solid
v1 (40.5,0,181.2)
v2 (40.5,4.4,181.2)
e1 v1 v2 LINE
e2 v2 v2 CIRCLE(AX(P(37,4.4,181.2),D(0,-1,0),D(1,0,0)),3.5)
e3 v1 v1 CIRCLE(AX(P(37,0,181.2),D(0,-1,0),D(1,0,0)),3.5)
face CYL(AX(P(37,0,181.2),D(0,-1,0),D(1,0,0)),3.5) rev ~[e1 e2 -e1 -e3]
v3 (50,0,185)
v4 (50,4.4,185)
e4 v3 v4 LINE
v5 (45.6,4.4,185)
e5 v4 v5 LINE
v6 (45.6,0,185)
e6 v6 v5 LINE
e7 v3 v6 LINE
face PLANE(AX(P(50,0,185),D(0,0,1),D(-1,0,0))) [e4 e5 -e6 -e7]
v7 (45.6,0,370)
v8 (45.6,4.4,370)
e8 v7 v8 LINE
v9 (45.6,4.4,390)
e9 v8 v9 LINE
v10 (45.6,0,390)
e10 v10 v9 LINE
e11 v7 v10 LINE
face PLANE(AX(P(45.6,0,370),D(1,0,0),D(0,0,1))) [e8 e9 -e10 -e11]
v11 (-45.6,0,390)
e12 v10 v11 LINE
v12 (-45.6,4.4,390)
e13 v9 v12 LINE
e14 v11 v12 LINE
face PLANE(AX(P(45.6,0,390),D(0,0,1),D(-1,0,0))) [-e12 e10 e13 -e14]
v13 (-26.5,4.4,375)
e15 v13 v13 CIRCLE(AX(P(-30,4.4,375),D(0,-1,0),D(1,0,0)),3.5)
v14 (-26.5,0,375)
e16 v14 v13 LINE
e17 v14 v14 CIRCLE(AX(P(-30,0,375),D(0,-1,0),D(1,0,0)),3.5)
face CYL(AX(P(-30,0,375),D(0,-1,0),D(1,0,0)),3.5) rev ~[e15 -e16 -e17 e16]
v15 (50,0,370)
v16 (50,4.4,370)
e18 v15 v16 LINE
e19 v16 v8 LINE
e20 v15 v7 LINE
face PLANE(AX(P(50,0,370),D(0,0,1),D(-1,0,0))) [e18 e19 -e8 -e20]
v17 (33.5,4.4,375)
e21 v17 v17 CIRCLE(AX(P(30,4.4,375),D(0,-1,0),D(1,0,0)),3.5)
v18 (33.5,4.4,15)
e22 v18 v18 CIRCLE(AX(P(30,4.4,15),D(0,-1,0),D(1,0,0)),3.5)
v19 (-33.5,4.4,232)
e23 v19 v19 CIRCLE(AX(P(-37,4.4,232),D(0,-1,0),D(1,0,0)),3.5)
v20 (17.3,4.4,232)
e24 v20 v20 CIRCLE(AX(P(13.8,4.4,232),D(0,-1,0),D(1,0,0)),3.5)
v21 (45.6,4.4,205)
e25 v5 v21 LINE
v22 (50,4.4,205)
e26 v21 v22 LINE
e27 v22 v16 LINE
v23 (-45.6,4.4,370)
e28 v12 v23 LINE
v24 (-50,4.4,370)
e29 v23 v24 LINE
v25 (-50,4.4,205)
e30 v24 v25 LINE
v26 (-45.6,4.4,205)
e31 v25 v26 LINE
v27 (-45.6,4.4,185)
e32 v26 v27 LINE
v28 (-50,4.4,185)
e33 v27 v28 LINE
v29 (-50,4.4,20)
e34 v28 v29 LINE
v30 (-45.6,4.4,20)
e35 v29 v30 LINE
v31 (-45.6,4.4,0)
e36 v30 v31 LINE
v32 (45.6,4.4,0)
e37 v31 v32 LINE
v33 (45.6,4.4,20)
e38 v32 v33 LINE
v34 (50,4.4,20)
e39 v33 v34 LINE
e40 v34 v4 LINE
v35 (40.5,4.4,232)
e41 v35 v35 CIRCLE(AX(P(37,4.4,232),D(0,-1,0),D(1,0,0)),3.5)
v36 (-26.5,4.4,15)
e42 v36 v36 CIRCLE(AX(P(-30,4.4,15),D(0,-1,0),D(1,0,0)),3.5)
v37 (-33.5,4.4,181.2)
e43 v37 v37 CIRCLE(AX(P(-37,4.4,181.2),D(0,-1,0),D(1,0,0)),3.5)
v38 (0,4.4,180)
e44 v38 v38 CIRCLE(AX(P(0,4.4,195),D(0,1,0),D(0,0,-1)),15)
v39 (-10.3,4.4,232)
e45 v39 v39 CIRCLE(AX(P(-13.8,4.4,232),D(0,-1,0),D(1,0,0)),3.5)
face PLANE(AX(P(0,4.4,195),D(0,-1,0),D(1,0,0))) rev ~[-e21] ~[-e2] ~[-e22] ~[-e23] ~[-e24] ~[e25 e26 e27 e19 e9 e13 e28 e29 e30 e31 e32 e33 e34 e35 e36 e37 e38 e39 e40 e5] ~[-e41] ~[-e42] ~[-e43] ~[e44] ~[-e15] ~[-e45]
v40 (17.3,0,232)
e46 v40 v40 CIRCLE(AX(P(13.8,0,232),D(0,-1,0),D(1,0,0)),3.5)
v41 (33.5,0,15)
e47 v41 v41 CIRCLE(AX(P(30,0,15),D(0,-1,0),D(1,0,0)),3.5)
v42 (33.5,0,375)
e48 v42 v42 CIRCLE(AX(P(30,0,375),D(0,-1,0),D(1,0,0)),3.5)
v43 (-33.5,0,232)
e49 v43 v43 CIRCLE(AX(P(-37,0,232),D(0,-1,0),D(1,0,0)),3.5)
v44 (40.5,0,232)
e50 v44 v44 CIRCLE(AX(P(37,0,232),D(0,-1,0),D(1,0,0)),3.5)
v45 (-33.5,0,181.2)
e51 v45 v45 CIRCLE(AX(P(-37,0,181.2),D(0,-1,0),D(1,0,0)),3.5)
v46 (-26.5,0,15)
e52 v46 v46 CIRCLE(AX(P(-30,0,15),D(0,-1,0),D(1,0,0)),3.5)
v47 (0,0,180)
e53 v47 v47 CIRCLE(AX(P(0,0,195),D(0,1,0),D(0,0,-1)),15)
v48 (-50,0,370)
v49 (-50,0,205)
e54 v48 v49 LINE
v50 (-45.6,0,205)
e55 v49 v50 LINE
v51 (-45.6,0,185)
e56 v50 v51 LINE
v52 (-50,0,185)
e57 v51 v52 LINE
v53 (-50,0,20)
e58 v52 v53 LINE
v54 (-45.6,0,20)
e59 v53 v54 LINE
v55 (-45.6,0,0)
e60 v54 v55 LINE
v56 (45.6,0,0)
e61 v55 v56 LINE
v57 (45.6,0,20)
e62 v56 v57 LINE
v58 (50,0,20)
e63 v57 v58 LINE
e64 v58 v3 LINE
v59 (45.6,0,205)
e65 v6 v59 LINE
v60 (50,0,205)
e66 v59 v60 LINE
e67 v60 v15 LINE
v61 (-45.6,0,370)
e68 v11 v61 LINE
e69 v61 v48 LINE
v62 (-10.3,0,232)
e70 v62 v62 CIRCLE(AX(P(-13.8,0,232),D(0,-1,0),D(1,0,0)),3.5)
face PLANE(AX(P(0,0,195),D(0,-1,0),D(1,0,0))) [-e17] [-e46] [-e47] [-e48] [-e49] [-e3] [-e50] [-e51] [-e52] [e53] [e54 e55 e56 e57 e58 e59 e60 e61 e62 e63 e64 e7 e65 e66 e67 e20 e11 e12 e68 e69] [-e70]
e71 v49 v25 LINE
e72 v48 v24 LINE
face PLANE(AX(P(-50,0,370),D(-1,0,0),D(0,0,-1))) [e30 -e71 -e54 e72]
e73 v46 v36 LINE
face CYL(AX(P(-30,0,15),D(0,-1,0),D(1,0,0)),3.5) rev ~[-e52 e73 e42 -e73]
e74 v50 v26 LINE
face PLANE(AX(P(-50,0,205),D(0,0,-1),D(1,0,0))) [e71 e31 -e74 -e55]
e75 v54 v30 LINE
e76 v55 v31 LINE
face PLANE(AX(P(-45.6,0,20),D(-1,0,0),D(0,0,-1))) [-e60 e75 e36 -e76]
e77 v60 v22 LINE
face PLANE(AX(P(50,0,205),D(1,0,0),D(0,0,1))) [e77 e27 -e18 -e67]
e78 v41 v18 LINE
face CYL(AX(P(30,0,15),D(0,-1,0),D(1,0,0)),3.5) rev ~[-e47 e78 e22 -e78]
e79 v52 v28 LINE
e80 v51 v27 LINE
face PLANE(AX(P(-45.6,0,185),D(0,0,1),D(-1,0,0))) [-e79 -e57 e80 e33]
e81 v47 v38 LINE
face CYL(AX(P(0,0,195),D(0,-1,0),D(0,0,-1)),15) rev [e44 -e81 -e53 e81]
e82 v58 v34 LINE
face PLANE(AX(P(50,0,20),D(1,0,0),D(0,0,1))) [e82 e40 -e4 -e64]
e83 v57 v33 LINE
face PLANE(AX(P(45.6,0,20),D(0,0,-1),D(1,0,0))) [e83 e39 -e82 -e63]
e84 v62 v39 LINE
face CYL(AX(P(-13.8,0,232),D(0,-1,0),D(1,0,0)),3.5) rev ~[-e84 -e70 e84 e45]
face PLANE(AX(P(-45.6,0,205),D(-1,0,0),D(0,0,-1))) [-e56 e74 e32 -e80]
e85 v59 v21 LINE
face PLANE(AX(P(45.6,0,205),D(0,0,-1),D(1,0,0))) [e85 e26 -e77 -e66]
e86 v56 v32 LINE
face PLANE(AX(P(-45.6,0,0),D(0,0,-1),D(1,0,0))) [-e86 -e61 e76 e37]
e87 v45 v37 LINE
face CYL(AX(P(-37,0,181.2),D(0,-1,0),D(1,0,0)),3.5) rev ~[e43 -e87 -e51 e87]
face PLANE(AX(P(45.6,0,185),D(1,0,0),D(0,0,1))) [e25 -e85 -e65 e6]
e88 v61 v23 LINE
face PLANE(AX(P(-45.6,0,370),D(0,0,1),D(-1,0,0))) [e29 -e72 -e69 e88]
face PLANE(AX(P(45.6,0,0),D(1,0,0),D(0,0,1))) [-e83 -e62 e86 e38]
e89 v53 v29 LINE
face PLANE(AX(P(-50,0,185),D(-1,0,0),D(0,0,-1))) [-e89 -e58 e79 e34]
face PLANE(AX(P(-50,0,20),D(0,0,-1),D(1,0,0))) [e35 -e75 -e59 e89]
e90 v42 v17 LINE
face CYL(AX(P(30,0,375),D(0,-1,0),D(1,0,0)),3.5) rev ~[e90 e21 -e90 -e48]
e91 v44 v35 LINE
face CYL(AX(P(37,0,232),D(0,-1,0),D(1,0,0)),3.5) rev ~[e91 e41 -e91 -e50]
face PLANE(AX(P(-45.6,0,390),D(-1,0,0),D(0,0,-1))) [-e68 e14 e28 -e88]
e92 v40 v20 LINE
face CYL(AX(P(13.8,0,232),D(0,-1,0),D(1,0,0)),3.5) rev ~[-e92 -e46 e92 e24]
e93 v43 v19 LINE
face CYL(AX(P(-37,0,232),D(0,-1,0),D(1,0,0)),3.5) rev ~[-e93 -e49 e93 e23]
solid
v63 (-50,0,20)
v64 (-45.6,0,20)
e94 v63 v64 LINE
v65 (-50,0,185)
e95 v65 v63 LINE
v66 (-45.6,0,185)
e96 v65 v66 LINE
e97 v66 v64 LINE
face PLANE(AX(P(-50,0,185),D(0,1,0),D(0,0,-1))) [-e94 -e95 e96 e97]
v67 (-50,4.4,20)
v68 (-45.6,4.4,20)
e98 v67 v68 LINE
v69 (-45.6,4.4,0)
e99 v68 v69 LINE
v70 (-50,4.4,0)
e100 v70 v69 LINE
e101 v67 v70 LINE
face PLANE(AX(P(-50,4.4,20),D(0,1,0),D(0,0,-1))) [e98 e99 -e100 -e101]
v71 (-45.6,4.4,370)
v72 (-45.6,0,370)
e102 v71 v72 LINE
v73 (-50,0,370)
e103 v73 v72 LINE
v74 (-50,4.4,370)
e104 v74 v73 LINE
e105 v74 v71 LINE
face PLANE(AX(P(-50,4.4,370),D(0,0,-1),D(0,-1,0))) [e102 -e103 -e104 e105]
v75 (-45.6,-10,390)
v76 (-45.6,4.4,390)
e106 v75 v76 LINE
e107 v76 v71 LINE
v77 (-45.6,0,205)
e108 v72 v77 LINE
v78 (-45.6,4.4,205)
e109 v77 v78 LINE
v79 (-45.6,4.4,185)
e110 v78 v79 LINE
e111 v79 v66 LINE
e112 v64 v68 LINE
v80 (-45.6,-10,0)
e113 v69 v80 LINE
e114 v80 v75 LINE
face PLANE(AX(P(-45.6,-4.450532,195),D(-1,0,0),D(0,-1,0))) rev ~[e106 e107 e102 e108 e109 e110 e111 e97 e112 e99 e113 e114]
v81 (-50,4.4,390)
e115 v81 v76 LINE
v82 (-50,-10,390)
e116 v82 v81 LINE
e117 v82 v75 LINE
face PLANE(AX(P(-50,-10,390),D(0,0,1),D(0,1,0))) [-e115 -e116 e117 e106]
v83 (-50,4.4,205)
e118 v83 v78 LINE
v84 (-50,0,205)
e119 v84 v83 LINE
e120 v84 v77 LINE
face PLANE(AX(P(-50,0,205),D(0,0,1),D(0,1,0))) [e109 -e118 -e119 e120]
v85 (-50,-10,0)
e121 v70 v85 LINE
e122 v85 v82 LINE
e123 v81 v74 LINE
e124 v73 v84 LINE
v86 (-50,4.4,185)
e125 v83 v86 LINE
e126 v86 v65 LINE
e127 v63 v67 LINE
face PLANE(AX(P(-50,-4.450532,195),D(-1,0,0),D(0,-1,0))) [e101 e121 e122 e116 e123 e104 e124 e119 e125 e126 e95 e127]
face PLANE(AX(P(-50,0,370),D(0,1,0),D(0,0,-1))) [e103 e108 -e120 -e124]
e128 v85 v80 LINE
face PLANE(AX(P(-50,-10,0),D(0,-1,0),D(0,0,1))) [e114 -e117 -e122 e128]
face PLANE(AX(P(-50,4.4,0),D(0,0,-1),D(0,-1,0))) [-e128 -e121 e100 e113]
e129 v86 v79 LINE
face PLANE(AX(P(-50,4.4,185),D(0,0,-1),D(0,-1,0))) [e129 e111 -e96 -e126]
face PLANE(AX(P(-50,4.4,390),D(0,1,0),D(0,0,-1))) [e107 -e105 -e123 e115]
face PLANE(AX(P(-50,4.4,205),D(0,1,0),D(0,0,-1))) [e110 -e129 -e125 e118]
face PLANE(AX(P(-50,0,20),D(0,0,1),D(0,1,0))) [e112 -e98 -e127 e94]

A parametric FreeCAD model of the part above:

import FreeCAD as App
import Part
import Sketcher
from FreeCAD import Vector
Q = App.Units.Quantity


def add_polygon(sketch, points):
    """Adds a closed chain of lines whose ends are joined by coincident constraints."""
    first, n = sketch.GeometryCount, len(points)
    for a, b in zip(points, points[1:] + points[:1]):
        sketch.addGeometry(Part.LineSegment(App.Vector(*a, 0), App.Vector(*b, 0)), False)
    for i in range(n):
        sketch.addConstraint(Sketcher.Constraint("Coincident", first + i, 2, first + (i + 1) % n, 1))

doc = App.newDocument("Part")
body = doc.addObject("PartDesign::Body", "Body")

# Sketch on XZ plane
sketch1 = body.newObject("Sketcher::SketchObject", "Sketch")
sketch1.AttachmentSupport = (doc.getObject("XZ_Plane"), [""])
sketch1.MapMode = "FlatFace"
add_polygon(sketch1, [(-45.6, 0), (45.6, 0), (45.6, 20), (50, 20), (50, 185), (45.6, 185), (45.6, 205), (50, 205), (50, 370), (45.6, 370), (45.6, 390), (-45.6, 390), (-45.6, 370), (-50, 370), (-50, 205), (-45.6, 205), (-45.6, 185), (-50, 185), (-50, 20), (-45.6, 20)])  # lines 0-19
sketch1.addGeometry(Part.Circle(Vector(-30, 15, 0), Vector(0, 0, 1), 3.5), False)  # 20
sketch1.addGeometry(Part.Circle(Vector(-37, 181.2, 0), Vector(0, 0, 1), 3.5), False)  # 21
sketch1.addGeometry(Part.Circle(Vector(30, 15, 0), Vector(0, 0, 1), 3.5), False)  # 22
sketch1.addGeometry(Part.Circle(Vector(37, 181.2, 0), Vector(0, 0, 1), 3.5), False)  # 23
sketch1.addGeometry(Part.Circle(Vector(-37, 232, 0), Vector(0, 0, 1), 3.5), False)  # 24
sketch1.addGeometry(Part.Circle(Vector(-13.8, 232, 0), Vector(0, 0, 1), 3.5), False)  # 25
sketch1.addGeometry(Part.Circle(Vector(0, 195, 0), Vector(0, 0, 1), 15), False)  # 26
sketch1.addGeometry(Part.Circle(Vector(-30, 375, 0), Vector(0, 0, 1), 3.5), False)  # 27
sketch1.addGeometry(Part.Circle(Vector(13.8, 232, 0), Vector(0, 0, 1), 3.5), False)  # 28
sketch1.addGeometry(Part.Circle(Vector(37, 232, 0), Vector(0, 0, 1), 3.5), False)  # 29
sketch1.addGeometry(Part.Circle(Vector(30, 375, 0), Vector(0, 0, 1), 3.5), False)  # 30
sketch1.addConstraint([
    Sketcher.Constraint("Horizontal", 0),
    Sketcher.Constraint("Vertical", 1),
    Sketcher.Constraint("Horizontal", 2),
    Sketcher.Constraint("Vertical", 3),
    Sketcher.Constraint("Horizontal", 4),
    Sketcher.Constraint("Vertical", 5),
    Sketcher.Constraint("Horizontal", 6),
    Sketcher.Constraint("Vertical", 7),
    Sketcher.Constraint("Horizontal", 8),
    Sketcher.Constraint("Vertical", 9),
    Sketcher.Constraint("Horizontal", 10),
    Sketcher.Constraint("Vertical", 11),
    Sketcher.Constraint("Horizontal", 12),
    Sketcher.Constraint("Vertical", 13),
    Sketcher.Constraint("Horizontal", 14),
    Sketcher.Constraint("Vertical", 15),
    Sketcher.Constraint("Horizontal", 16),
    Sketcher.Constraint("Vertical", 17),
    Sketcher.Constraint("Horizontal", 18),
    Sketcher.Constraint("Vertical", 19),
    Sketcher.Constraint("Equal", 20, 21),
    Sketcher.Constraint("Equal", 21, 22),
    Sketcher.Constraint("Equal", 22, 23),
    Sketcher.Constraint("Equal", 23, 24),
    Sketcher.Constraint("Equal", 24, 25),
    Sketcher.Constraint("Equal", 25, 27),
    Sketcher.Constraint("Equal", 27, 28),
    Sketcher.Constraint("Equal", 28, 29),
    Sketcher.Constraint("Equal", 29, 30),
    Sketcher.Constraint("Symmetric", 0, 2, 19, 2, -1, 1),
    Sketcher.Constraint("Symmetric", 20, 3, 22, 3, -2),
    Sketcher.Constraint("Symmetric", 21, 3, 23, 3, -2),
    Sketcher.Constraint("Symmetric", 25, 3, 28, 3, -2),
    Sketcher.Constraint("Symmetric", 24, 3, 29, 3, -2),
    Sketcher.Constraint("Symmetric", 27, 3, 30, 3, -2),
    Sketcher.Constraint("Symmetric", 8, 2, 11, 2, -2),
    Sketcher.Constraint("Symmetric", 6, 2, 13, 2, -2),
    Sketcher.Constraint("Symmetric", 4, 2, 15, 2, -2),
    Sketcher.Constraint("Symmetric", 2, 2, 17, 2, -2),
    Sketcher.Constraint("PointOnObject", 26, 3, -2),
    Sketcher.Constraint("Horizontal", 24, 3, 25, 3),
    Sketcher.Constraint("Vertical", 21, 3, 24, 3),
    Sketcher.Constraint("Vertical", 20, 3, 27, 3),
    Sketcher.Constraint("Vertical", 1, 2, 4, 2),
    Sketcher.Constraint("Vertical", 3, 2, 6, 2),
    Sketcher.Constraint("Vertical", 5, 2, 8, 2),
    Sketcher.Constraint("Equal", 1, 5),
    Sketcher.Constraint("Equal", 3, 7),
    Sketcher.Constraint("Equal", 5, 9),
    Sketcher.Constraint("Diameter", 20, Q("7 mm")),
    Sketcher.Constraint("Diameter", 26, Q("30 mm")),
    Sketcher.Constraint("DistanceY", 1, 1, 1, 2, Q("20 mm")),
    Sketcher.Constraint("DistanceY", 3, 1, 3, 2, Q("165 mm")),
    Sketcher.Constraint("DistanceX", 0, 1, 0, 2, Q("91.2 mm")),
    Sketcher.Constraint("DistanceX", 2, 1, 2, 2, Q("4.4 mm")),
    Sketcher.Constraint("DistanceX", 20, 3, -1, 1, Q("30 mm")),
    Sketcher.Constraint("DistanceY", -1, 1, 20, 3, Q("15 mm")),
    Sketcher.Constraint("DistanceX", 21, 3, -1, 1, Q("37 mm")),
    Sketcher.Constraint("DistanceY", -1, 1, 24, 3, Q("232 mm")),
    Sketcher.Constraint("DistanceY", -1, 1, 26, 3, Q("195 mm")),
    Sketcher.Constraint("DistanceY", -1, 1, 27, 3, Q("375 mm")),
    Sketcher.Constraint("DistanceY", -1, 1, 21, 3, Q("181.2 mm")),
    Sketcher.Constraint("DistanceX", 25, 3, -1, 1, Q("13.8 mm")),
])
pad1 = body.newObject("PartDesign::Pad", "Pad")
pad1.Profile = sketch1
pad1.Length = 4.4
pad1.Reversed = True
body2 = doc.addObject("PartDesign::Body", "Body001")

# Sketch on YZ plane
sketch2 = body2.newObject("Sketcher::SketchObject", "Sketch001")
sketch2.AttachmentSupport = (doc.getObject("YZ_Plane001"), [""])
sketch2.MapMode = "FlatFace"
sketch2.AttachmentOffset = App.Placement(Vector(0, 0, -50), App.Rotation())
add_polygon(sketch2, [(4.4, 390), (4.4, 370), (0, 370), (0, 205), (4.4, 205), (4.4, 185), (0, 185), (0, 20), (4.4, 20), (4.4, 0), (-10, 0), (-10, 390)])  # lines 0-11
sketch2.addConstraint([
    Sketcher.Constraint("Vertical", 0),
    Sketcher.Constraint("Horizontal", 1),
    Sketcher.Constraint("Vertical", 2),
    Sketcher.Constraint("Horizontal", 3),
    Sketcher.Constraint("Vertical", 4),
    Sketcher.Constraint("Horizontal", 5),
    Sketcher.Constraint("Vertical", 6),
    Sketcher.Constraint("Horizontal", 7),
    Sketcher.Constraint("Vertical", 8),
    Sketcher.Constraint("Horizontal", 9),
    Sketcher.Constraint("Vertical", 10),
    Sketcher.Constraint("Horizontal", 11),
    Sketcher.Constraint("PointOnObject", 1, 2, -2),
    Sketcher.Constraint("PointOnObject", 5, 2, -2),
    Sketcher.Constraint("PointOnObject", 8, 2, -1),
    Sketcher.Constraint("Vertical", 0, 2, 3, 2),
    Sketcher.Constraint("Vertical", 4, 2, 7, 2),
    Sketcher.Constraint("Equal", 0, 4),
    Sketcher.Constraint("Equal", 2, 6),
    Sketcher.Constraint("Equal", 4, 8),
    Sketcher.Constraint("DistanceY", 0, 2, 0, 1, Q("20 mm")),
    Sketcher.Constraint("DistanceY", 2, 2, 2, 1, Q("165 mm")),
    Sketcher.Constraint("DistanceX", 1, 2, 1, 1, Q("4.4 mm")),
    Sketcher.Constraint("DistanceX", 9, 2, 9, 1, Q("14.4 mm")),
])
pad2 = body2.newObject("PartDesign::Pad", "Pad001")
pad2.Profile = sketch2
pad2.Length = 4.4

doc.recompute()
